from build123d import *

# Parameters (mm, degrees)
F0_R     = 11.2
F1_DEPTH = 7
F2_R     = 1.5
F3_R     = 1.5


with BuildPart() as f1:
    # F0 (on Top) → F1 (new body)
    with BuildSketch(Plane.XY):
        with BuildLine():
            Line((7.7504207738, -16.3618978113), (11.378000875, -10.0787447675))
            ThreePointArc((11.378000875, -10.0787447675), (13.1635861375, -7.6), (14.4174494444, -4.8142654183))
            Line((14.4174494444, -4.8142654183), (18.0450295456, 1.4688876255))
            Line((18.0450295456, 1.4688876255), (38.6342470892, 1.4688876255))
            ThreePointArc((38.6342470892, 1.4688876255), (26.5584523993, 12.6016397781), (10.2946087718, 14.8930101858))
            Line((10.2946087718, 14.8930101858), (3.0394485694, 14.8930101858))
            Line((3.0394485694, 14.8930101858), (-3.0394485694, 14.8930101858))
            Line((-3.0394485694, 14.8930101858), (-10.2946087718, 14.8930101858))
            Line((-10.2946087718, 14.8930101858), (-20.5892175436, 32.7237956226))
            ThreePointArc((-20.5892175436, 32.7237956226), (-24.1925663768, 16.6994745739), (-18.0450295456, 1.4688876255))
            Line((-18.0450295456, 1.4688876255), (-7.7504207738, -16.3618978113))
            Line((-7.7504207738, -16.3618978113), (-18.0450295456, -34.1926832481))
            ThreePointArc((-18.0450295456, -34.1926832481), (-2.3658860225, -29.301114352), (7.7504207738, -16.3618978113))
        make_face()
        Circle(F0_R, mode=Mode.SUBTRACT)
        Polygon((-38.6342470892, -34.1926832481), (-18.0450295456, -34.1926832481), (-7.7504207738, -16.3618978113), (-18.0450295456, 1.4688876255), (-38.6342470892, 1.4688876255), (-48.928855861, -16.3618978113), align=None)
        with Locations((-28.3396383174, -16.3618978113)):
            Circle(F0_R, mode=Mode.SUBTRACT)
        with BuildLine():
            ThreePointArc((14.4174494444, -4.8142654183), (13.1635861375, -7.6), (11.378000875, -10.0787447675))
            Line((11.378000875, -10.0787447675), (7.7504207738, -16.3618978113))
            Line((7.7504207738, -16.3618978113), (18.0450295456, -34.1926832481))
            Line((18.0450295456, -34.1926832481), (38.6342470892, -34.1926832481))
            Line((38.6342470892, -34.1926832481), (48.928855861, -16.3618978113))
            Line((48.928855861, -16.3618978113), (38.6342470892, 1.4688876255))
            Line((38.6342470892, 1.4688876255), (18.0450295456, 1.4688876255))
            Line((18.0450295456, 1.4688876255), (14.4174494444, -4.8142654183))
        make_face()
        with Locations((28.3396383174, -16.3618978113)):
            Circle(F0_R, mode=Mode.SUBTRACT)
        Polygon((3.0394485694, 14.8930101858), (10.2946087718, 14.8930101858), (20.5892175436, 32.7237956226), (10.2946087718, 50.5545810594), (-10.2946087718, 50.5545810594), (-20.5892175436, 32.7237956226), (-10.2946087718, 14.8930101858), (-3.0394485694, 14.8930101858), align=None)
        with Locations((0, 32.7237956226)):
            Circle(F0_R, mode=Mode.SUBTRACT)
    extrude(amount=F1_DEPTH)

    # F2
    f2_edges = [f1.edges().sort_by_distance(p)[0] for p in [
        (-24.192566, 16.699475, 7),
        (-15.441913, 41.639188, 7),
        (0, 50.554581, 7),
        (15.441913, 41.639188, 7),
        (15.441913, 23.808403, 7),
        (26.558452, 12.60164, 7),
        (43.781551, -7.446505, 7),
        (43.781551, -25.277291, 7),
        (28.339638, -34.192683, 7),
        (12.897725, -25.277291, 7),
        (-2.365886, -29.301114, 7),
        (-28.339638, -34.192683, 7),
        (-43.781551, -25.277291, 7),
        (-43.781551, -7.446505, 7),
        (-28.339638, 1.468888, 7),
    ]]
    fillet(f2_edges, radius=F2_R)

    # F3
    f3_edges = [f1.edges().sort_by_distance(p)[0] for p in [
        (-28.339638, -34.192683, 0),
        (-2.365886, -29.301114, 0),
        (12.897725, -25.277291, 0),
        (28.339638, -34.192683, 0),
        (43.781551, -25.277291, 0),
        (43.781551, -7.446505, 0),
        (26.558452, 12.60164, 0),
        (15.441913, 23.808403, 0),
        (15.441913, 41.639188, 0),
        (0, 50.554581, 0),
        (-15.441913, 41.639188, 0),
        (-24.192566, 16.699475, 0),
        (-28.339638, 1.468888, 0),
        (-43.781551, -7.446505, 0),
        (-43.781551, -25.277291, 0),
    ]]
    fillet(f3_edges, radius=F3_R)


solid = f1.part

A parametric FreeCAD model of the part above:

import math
import FreeCAD as App
import Part
import Sketcher
Q = App.Units.Quantity


def edges_at(feature, points):
    """Names of the edges that pass closest to the given points."""
    edges = feature.Shape.Edges
    near = lambda p: min(range(len(edges)), key=lambda i: edges[i].distToShape(Part.Vertex(*p))[0])
    return sorted({f"Edge{near(p) + 1}" for p in points})

doc = App.newDocument("Part")
body = doc.addObject("PartDesign::Body", "Body")

# Sketch on XY plane
sketch1 = body.newObject("Sketcher::SketchObject", "Sketch")
sketch1.AttachmentSupport = (doc.getObject("XY_Plane"), [""])
sketch1.MapMode = "FlatFace"
sketch1.addGeometry([
    Part.ArcOfCircle(Part.Circle(App.Vector(-18, -7, 0), App.Vector(0, 0, 1), 28), math.radians(-90), math.radians(-21)),  # 0
    Part.LineSegment(App.Vector(8, -16, 0), App.Vector(18, -34, 0)),  # 1
    Part.LineSegment(App.Vector(18, -34, 0), App.Vector(39, -34, 0)),  # 2
    Part.LineSegment(App.Vector(39, -34, 0), App.Vector(49, -16, 0)),  # 3
    Part.LineSegment(App.Vector(49, -16, 0), App.Vector(39, 1, 0)),  # 4
    Part.ArcOfCircle(Part.Circle(App.Vector(15, -12, 0), App.Vector(0, 0, 1), 28), math.radians(30), math.radians(99)),  # 5
    Part.LineSegment(App.Vector(10, 15, 0), App.Vector(21, 33, 0)),  # 6
    Part.LineSegment(App.Vector(21, 33, 0), App.Vector(10, 51, 0)),  # 7
    Part.LineSegment(App.Vector(10, 51, 0), App.Vector(-10, 51, 0)),  # 8
    Part.LineSegment(App.Vector(-10, 51, 0), App.Vector(-21, 33, 0)),  # 9
    Part.ArcOfCircle(Part.Circle(App.Vector(3, 19, 0), App.Vector(0, 0, 1), 28), math.radians(150), math.radians(219)),  # 10
    Part.LineSegment(App.Vector(-18, 1, 0), App.Vector(-39, 1, 0)),  # 11
    Part.LineSegment(App.Vector(-39, 1, 0), App.Vector(-49, -16, 0)),  # 12
    Part.LineSegment(App.Vector(-49, -16, 0), App.Vector(-39, -34, 0)),  # 13
    Part.LineSegment(App.Vector(-39, -34, 0), App.Vector(-18, -34, 0)),  # 14
    Part.Circle(App.Vector(-28, -16, 0), App.Vector(0, 0, 1), 11),  # 15
    Part.Circle(App.Vector(28, -16, 0), App.Vector(0, 0, 1), 11),  # 16
    Part.Circle(App.Vector(0, 0, 0), App.Vector(0, 0, 1), 11),  # 17
    Part.Circle(App.Vector(0, 33, 0), App.Vector(0, 0, 1), 11),  # 18
], False)
sketch1.addConstraint([
    Sketcher.Constraint("Coincident", 0, 2, 1, 1),
    Sketcher.Constraint("Coincident", 1, 2, 2, 1),
    Sketcher.Constraint("Coincident", 2, 2, 3, 1),
    Sketcher.Constraint("Coincident", 3, 2, 4, 1),
    Sketcher.Constraint("Tangent", 4, 2, 5, 1),
    Sketcher.Constraint("Coincident", 5, 2, 6, 1),
    Sketcher.Constraint("Coincident", 6, 2, 7, 1),
    Sketcher.Constraint("Coincident", 7, 2, 8, 1),
    Sketcher.Constraint("Coincident", 8, 2, 9, 1),
    Sketcher.Constraint("Tangent", 9, 2, 10, 1),
    Sketcher.Constraint("Coincident", 10, 2, 11, 1),
    Sketcher.Constraint("Coincident", 11, 2, 12, 1),
    Sketcher.Constraint("Coincident", 12, 2, 13, 1),
    Sketcher.Constraint("Coincident", 13, 2, 14, 1),
    Sketcher.Constraint("Tangent", 14, 2, 0, 1),
    Sketcher.Constraint("Horizontal", 2),
    Sketcher.Constraint("Horizontal", 8),
    Sketcher.Constraint("Horizontal", 11),
    Sketcher.Constraint("Horizontal", 14),
    Sketcher.Constraint("Coincident", 17, 3, -1, 1),
    Sketcher.Constraint("Equal", 0, 5),
    Sketcher.Constraint("Equal", 5, 10),
    Sketcher.Constraint("Equal", 15, 16),
    Sketcher.Constraint("Equal", 16, 17),
    Sketcher.Constraint("Equal", 17, 18),
    Sketcher.Constraint("Symmetric", 15, 3, 16, 3, -2),
    Sketcher.Constraint("Symmetric", 6, 2, 9, 2, -2),
    Sketcher.Constraint("Symmetric", 4, 2, 11, 2, -2),
    Sketcher.Constraint("Symmetric", 3, 2, 12, 2, -2),
    Sketcher.Constraint("Symmetric", 2, 2, 13, 2, -2),
    Sketcher.Constraint("PointOnObject", 18, 3, -2),
    Sketcher.Constraint("Parallel", 1, 4),
    Sketcher.Constraint("Parallel", 3, 6),
    Sketcher.Constraint("Parallel", 4, 7),
    Sketcher.Constraint("Parallel", 6, 9),
    Sketcher.Constraint("Parallel", 9, 12),
    Sketcher.Constraint("Horizontal", 16, 3, 0, 2),
    Sketcher.Constraint("Horizontal", 0, 2, 3, 2),
    Sketcher.Constraint("Horizontal", 18, 3, 6, 2),
    Sketcher.Constraint("Vertical", 2, 2, 4, 2),
    Sketcher.Constraint("Vertical", 5, 2, 7, 2),
    Sketcher.Constraint("Vertical", 0, 3, 10, 2),
    Sketcher.Constraint("Equal", 2, 8),
    Sketcher.Constraint("Equal", 8, 11),
    Sketcher.Constraint("Equal", 4, 6),
    Sketcher.Constraint("Diameter", 15, 22.4),
    Sketcher.Constraint("Angle", 1, Q("-60 deg")),
    Sketcher.Constraint("Radius", 0, 27.574281),
    Sketcher.Constraint("DistanceY", 0, 3, 18, 3, 39.342198),
    Sketcher.Constraint("DistanceX", 15, 3, -1, 1, 28.339638),
    Sketcher.Constraint("DistanceY", -1, 1, 5, 2, 14.89301),
])
pad1 = body.newObject("PartDesign::Pad", "Pad")
pad1.Profile = sketch1
pad1.Length = 7
doc.recompute()

fillet = body.newObject("PartDesign::Fillet", "Fillet")
fillet.Base = (pad1, edges_at(pad1, [
    (-24.193, 16.699, 7),
    (-15.442, 41.639, 7),
    (0, 50.555, 7),
    (15.442, 41.639, 7),
    (15.442, 23.808, 7),
    (26.558, 12.602, 7),
    (43.782, -7.447, 7),
    (43.782, -25.277, 7),
    (28.34, -34.193, 7),
    (12.898, -25.277, 7),
    (-2.366, -29.301, 7),
    (-28.34, -34.193, 7),
    (-43.782, -25.277, 7),
    (-43.782, -7.447, 7),
    (-28.34, 1.469, 7),
]))
fillet.Radius = 1.5
doc.recompute()

fillet2 = body.newObject("PartDesign::Fillet", "Fillet001")
fillet2.Base = (fillet, edges_at(fillet, [
    (-28.34, -34.193, 0),
    (-2.366, -29.301, 0),
    (12.898, -25.277, 0),
    (28.34, -34.193, 0),
    (43.782, -25.277, 0),
    (43.782, -7.447, 0),
    (26.558, 12.602, 0),
    (15.442, 23.808, 0),
    (15.442, 41.639, 0),
    (0, 50.555, 0),
    (-15.442, 41.639, 0),
    (-24.193, 16.699, 0),
    (-28.34, 1.469, 0),
    (-43.782, -7.447, 0),
    (-43.782, -25.277, 0),
]))
fillet2.Radius = 1.5

doc.recompute()
